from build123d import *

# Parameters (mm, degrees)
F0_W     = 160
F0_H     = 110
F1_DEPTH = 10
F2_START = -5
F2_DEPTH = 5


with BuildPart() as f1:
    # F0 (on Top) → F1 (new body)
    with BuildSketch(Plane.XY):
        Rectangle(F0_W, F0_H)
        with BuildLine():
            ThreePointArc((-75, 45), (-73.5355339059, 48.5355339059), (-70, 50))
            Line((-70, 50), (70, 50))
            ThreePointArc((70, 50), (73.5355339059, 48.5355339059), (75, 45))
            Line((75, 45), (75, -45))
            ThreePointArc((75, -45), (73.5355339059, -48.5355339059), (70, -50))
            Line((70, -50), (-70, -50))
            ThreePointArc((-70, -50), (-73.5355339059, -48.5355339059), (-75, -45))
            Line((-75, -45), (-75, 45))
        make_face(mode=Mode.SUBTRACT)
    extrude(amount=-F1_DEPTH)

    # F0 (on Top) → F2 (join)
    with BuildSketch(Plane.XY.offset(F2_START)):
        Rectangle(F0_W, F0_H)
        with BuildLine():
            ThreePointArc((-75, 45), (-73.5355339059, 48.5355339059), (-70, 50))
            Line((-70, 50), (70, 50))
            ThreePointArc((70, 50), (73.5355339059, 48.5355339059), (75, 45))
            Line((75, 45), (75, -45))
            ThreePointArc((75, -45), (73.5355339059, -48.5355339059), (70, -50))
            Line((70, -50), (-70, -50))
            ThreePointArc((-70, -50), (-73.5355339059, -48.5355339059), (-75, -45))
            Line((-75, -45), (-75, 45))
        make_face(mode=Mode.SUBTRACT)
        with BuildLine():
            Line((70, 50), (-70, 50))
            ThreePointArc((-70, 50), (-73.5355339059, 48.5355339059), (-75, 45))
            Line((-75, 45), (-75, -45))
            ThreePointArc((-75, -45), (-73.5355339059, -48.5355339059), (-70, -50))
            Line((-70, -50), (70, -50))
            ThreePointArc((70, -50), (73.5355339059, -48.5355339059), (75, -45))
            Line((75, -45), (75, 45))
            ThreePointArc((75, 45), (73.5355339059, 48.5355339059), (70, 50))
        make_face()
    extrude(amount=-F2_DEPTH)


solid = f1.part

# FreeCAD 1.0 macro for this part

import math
import FreeCAD as App
import Part
import Sketcher

V = App.Vector

doc = App.newDocument("Part")
body = doc.addObject("PartDesign::Body", "Body")

sketch1 = doc.addObject("Sketcher::SketchObject", "Sketch")
body.addObject(sketch1)
sketch1.AttachmentSupport = (doc.XY_Plane, [""])
sketch1.MapMode = "FlatFace"
sketch1.addGeometry(Part.LineSegment(V(-80, 55, 0), V(-80, -55, 0)), False)
sketch1.addGeometry(Part.LineSegment(V(-80, -55, 0), V(80, -55, 0)), False)
sketch1.addGeometry(Part.LineSegment(V(80, -55, 0), V(80, 55, 0)), False)
sketch1.addGeometry(Part.LineSegment(V(80, 55, 0), V(-80, 55, 0)), False)
sketch1.addGeometry(Part.LineSegment(V(-75, -45, 0), V(-75, 45, 0)), False)
sketch1.addGeometry(Part.ArcOfCircle(Part.Circle(V(-70, 45, 0), V(0, 0, 1), 5), math.radians(90), math.radians(180)), False)
sketch1.addGeometry(Part.LineSegment(V(-70, 50, 0), V(70, 50, 0)), False)
sketch1.addGeometry(Part.ArcOfCircle(Part.Circle(V(70, 45, 0), V(0, 0, 1), 5), math.radians(0), math.radians(90)), False)
sketch1.addGeometry(Part.LineSegment(V(75, 45, 0), V(75, -45, 0)), False)
sketch1.addGeometry(Part.ArcOfCircle(Part.Circle(V(70, -45, 0), V(0, 0, 1), 5), math.radians(-90), math.radians(0)), False)
sketch1.addGeometry(Part.LineSegment(V(70, -50, 0), V(-70, -50, 0)), False)
sketch1.addGeometry(Part.ArcOfCircle(Part.Circle(V(-70, -45, 0), V(0, 0, 1), 5), math.radians(180), math.radians(270)), False)
sketch1.addConstraint(Sketcher.Constraint("Coincident", 0, 2, 1, 1))
sketch1.addConstraint(Sketcher.Constraint("Coincident", 1, 2, 2, 1))
sketch1.addConstraint(Sketcher.Constraint("Coincident", 2, 2, 3, 1))
sketch1.addConstraint(Sketcher.Constraint("Coincident", 3, 2, 0, 1))
sketch1.addConstraint(Sketcher.Constraint("Tangent", 4, 2, 5, 2))
sketch1.addConstraint(Sketcher.Constraint("Tangent", 5, 1, 6, 1))
sketch1.addConstraint(Sketcher.Constraint("Tangent", 6, 2, 7, 2))
sketch1.addConstraint(Sketcher.Constraint("Tangent", 7, 1, 8, 1))
sketch1.addConstraint(Sketcher.Constraint("Tangent", 8, 2, 9, 2))
sketch1.addConstraint(Sketcher.Constraint("Tangent", 9, 1, 10, 1))
sketch1.addConstraint(Sketcher.Constraint("Tangent", 10, 2, 11, 2))
sketch1.addConstraint(Sketcher.Constraint("Tangent", 11, 1, 4, 1))
sketch1.addConstraint(Sketcher.Constraint("Vertical", 0))
sketch1.addConstraint(Sketcher.Constraint("Horizontal", 1))
sketch1.addConstraint(Sketcher.Constraint("Vertical", 2))
sketch1.addConstraint(Sketcher.Constraint("Horizontal", 3))
sketch1.addConstraint(Sketcher.Constraint("Vertical", 4))
sketch1.addConstraint(Sketcher.Constraint("Horizontal", 6))
sketch1.addConstraint(Sketcher.Constraint("Vertical", 8))
sketch1.addConstraint(Sketcher.Constraint("Horizontal", 10))
sketch1.addConstraint(Sketcher.Constraint("Equal", 5, 7))
sketch1.addConstraint(Sketcher.Constraint("Equal", 7, 9))
sketch1.addConstraint(Sketcher.Constraint("Equal", 9, 11))
sketch1.addConstraint(Sketcher.Constraint("Symmetric", 5, 3, 9, 3, -1, 1))
sketch1.addConstraint(Sketcher.Constraint("Symmetric", 0, 2, 2, 2, -1, 1))
sketch1.addConstraint(Sketcher.Constraint("Radius", 5, 5.0))
sketch1.addConstraint(Sketcher.Constraint("DistanceX", 1, 1, 1, 2, 160.0))
sketch1.addConstraint(Sketcher.Constraint("DistanceX", 6, 1, 6, 2, 140.0))
sketch1.addConstraint(Sketcher.Constraint("DistanceY", 0, 2, 0, 1, 110.0))
sketch1.addConstraint(Sketcher.Constraint("DistanceY", 4, 1, 4, 2, 90.0))
pad1 = doc.addObject("PartDesign::Pad", "Pad")
body.addObject(pad1)
pad1.Profile = sketch1
pad1.Length = 10
pad1.Reversed = True

sketch2 = doc.addObject("Sketcher::SketchObject", "Sketch001")
body.addObject(sketch2)
sketch2.AttachmentSupport = (doc.XY_Plane, [""])
sketch2.MapMode = "FlatFace"
sketch2.AttachmentOffset = App.Placement(V(0, 0, -5), App.Rotation())
sketch2.addGeometry(Part.LineSegment(V(-80, 55, 0), V(-80, -55, 0)), False)
sketch2.addGeometry(Part.LineSegment(V(-80, -55, 0), V(80, -55, 0)), False)
sketch2.addGeometry(Part.LineSegment(V(80, -55, 0), V(80, 55, 0)), False)
sketch2.addGeometry(Part.LineSegment(V(80, 55, 0), V(-80, 55, 0)), False)
sketch2.addConstraint(Sketcher.Constraint("Coincident", 0, 2, 1, 1))
sketch2.addConstraint(Sketcher.Constraint("Coincident", 1, 2, 2, 1))
sketch2.addConstraint(Sketcher.Constraint("Coincident", 2, 2, 3, 1))
sketch2.addConstraint(Sketcher.Constraint("Coincident", 3, 2, 0, 1))
sketch2.addConstraint(Sketcher.Constraint("Vertical", 0))
sketch2.addConstraint(Sketcher.Constraint("Horizontal", 1))
sketch2.addConstraint(Sketcher.Constraint("Vertical", 2))
sketch2.addConstraint(Sketcher.Constraint("Horizontal", 3))
sketch2.addConstraint(Sketcher.Constraint("Symmetric", 0, 2, 2, 2, -1, 1))
sketch2.addConstraint(Sketcher.Constraint("DistanceX", 1, 1, 1, 2, 160.0))
sketch2.addConstraint(Sketcher.Constraint("DistanceY", 0, 2, 0, 1, 110.0))
pad2 = doc.addObject("PartDesign::Pad", "Pad001")
body.addObject(pad2)
pad2.Profile = sketch2
pad2.Length = 5
pad2.Reversed = True

doc.recompute()
